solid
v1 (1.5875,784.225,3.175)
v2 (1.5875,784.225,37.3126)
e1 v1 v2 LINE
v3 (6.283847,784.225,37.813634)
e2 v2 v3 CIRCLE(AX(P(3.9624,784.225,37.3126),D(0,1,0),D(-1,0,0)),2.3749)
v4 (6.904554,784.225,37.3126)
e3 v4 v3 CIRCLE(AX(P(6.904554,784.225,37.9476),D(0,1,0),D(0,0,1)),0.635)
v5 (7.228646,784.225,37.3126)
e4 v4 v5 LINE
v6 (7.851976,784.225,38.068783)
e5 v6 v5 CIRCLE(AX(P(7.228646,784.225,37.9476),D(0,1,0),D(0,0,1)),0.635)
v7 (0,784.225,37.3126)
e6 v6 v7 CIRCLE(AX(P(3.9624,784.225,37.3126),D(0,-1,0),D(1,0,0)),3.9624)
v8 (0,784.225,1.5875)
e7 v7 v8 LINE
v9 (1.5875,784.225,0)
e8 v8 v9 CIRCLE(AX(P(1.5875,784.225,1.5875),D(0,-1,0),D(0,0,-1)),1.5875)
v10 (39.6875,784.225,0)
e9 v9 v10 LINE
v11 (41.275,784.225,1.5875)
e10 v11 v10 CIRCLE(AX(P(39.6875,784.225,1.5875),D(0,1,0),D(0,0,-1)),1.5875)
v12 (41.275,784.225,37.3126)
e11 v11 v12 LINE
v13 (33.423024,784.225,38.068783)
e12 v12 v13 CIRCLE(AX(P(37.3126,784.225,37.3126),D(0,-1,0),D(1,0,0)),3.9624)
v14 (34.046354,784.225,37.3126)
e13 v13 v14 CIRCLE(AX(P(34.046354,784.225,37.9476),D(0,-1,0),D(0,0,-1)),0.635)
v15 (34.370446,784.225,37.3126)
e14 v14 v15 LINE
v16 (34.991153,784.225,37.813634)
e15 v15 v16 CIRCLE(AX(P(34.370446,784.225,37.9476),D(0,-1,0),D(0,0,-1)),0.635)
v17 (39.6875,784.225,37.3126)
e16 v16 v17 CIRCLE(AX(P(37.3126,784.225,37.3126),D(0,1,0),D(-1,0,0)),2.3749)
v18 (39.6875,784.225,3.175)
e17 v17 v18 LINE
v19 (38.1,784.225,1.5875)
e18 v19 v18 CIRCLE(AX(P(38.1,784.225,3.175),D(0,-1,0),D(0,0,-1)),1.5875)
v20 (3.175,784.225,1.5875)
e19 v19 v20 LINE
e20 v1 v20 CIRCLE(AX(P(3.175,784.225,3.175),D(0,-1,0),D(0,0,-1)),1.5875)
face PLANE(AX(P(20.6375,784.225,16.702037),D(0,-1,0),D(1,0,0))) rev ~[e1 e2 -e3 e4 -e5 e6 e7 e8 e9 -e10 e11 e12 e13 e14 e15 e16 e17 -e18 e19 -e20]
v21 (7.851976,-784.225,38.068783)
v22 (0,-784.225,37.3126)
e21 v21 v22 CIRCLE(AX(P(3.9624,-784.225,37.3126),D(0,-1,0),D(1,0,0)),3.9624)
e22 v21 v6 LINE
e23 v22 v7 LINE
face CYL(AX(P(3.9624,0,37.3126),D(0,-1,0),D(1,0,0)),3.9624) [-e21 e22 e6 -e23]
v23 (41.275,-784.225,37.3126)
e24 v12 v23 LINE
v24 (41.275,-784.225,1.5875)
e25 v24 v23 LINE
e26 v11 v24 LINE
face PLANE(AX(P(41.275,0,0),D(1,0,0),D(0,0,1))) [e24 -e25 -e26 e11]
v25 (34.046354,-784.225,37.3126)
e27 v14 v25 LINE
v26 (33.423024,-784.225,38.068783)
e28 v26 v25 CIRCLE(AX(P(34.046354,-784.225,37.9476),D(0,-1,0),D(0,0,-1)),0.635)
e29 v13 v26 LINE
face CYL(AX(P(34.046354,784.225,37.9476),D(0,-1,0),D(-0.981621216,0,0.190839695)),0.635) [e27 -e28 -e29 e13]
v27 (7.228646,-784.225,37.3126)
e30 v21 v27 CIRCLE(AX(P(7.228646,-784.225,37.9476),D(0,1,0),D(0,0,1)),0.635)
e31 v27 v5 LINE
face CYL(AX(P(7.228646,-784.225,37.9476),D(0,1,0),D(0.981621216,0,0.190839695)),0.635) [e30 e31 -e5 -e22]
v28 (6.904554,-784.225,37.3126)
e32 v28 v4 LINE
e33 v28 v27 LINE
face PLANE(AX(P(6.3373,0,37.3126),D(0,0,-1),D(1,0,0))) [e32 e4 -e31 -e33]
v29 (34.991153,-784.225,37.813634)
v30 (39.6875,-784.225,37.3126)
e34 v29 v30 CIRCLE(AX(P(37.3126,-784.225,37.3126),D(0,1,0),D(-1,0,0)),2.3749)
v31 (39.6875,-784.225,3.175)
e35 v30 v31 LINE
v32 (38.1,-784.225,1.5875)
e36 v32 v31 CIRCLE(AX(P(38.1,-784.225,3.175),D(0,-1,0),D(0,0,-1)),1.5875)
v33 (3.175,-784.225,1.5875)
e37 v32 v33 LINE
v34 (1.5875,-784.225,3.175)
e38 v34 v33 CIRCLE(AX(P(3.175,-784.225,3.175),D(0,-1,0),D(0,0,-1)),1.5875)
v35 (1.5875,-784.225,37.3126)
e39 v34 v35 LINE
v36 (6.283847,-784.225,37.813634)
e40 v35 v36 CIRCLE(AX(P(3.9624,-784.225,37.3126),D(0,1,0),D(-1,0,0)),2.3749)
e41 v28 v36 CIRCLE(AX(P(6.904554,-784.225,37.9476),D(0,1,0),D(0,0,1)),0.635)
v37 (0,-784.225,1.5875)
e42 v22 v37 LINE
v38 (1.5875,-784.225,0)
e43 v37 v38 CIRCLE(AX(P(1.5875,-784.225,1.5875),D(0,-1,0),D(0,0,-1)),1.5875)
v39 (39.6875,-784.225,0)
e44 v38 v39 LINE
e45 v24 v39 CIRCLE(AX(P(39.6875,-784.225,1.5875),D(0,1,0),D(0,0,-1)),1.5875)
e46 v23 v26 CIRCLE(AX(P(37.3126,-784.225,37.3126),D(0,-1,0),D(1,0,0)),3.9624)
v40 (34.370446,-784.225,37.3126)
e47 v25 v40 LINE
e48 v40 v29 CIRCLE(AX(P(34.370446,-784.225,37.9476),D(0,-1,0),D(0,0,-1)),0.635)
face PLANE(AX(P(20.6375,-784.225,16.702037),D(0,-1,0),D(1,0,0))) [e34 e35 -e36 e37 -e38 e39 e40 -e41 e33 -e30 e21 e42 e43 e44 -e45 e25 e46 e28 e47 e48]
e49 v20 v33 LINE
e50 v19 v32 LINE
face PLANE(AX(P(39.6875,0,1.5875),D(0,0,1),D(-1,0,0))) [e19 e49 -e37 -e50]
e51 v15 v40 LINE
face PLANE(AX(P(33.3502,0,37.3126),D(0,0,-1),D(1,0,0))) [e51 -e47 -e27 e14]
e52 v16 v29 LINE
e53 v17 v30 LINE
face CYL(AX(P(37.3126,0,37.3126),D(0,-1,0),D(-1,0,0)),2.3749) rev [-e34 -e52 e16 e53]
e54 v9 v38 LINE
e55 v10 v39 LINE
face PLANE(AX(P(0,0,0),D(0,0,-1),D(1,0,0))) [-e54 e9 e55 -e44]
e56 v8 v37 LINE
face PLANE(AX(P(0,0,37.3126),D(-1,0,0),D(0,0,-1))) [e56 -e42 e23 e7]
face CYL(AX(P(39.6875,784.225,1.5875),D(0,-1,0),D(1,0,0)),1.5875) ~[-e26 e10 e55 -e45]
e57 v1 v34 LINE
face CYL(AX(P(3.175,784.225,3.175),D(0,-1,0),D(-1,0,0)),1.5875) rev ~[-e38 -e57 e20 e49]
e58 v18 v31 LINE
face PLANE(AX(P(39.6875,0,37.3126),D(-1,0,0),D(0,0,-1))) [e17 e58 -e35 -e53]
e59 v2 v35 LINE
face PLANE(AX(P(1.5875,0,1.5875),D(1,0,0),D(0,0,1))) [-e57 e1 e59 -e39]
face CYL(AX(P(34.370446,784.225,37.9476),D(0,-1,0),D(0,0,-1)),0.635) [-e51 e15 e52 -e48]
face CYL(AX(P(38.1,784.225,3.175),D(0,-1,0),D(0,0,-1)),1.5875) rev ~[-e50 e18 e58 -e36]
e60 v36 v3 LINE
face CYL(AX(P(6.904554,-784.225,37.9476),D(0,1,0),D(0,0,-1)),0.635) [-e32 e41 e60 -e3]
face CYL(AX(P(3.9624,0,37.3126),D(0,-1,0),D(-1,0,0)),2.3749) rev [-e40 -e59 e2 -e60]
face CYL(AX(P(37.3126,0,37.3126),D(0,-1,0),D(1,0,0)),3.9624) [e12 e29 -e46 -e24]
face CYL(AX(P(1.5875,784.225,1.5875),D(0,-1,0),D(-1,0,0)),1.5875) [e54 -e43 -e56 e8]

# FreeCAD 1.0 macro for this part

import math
import FreeCAD as App
import Part
import Sketcher

V = App.Vector
Q = App.Units.Quantity


def edges_at(feature, points):
    """Names of the edges that pass closest to the given points."""
    edges = feature.Shape.Edges
    near = lambda p: min(range(len(edges)), key=lambda i: edges[i].distToShape(Part.Vertex(*p))[0])
    return sorted({f"Edge{near(p) + 1}" for p in points})

doc = App.newDocument("Part")
body = doc.addObject("PartDesign::Body", "Body")

# Sketch on XZ plane
sketch1 = body.newObject("Sketcher::SketchObject", "Sketch")
sketch1.AttachmentSupport = (doc.getObject("XZ_Plane"), [""])
sketch1.MapMode = "FlatFace"
sketch1.addGeometry([
    Part.LineSegment(V(0, 37.3, 0), V(0, 0, 0)),  # 0
    Part.LineSegment(V(0, 0, 0), V(41.3, 0, 0)),  # 1
    Part.LineSegment(V(41.3, 0, 0), V(41.3, 37.3, 0)),  # 2
    Part.ArcOfCircle(Part.Circle(V(37.3, 37.3, 0), V(0, 0, 1), 4), math.radians(0), math.radians(180)),  # 3
    Part.LineSegment(V(33.4, 37.3, 0), V(34.9, 37.3, 0)),  # 4
    Part.ArcOfCircle(Part.Circle(V(37.3, 37.3, 0), V(0, 0, 1), 2.4), math.radians(0), math.radians(180)),  # 5
    Part.LineSegment(V(39.7, 37.3, 0), V(39.7, 1.6, 0)),  # 6
    Part.LineSegment(V(39.7, 1.6, 0), V(1.6, 1.6, 0)),  # 7
    Part.LineSegment(V(1.6, 1.6, 0), V(1.6, 37.3, 0)),  # 8
    Part.ArcOfCircle(Part.Circle(V(4, 37.3, 0), V(0, 0, 1), 2.4), math.radians(0), math.radians(180)),  # 9
    Part.LineSegment(V(6.3, 37.3, 0), V(7.9, 37.3, 0)),  # 10
    Part.ArcOfCircle(Part.Circle(V(4, 37.3, 0), V(0, 0, 1), 4), math.radians(0), math.radians(180)),  # 11
], False)
sketch1.addConstraint([
    Sketcher.Constraint("Coincident", 0, 2, 1, 1),
    Sketcher.Constraint("Coincident", 1, 2, 2, 1),
    Sketcher.Constraint("Tangent", 2, 2, 3, 1),
    Sketcher.Constraint("Coincident", 3, 2, 4, 1),
    Sketcher.Constraint("Coincident", 4, 2, 5, 2),
    Sketcher.Constraint("Tangent", 5, 1, 6, 1),
    Sketcher.Constraint("Coincident", 6, 2, 7, 1),
    Sketcher.Constraint("Coincident", 7, 2, 8, 1),
    Sketcher.Constraint("Tangent", 8, 2, 9, 2),
    Sketcher.Constraint("Coincident", 9, 1, 10, 1),
    Sketcher.Constraint("Coincident", 10, 2, 11, 1),
    Sketcher.Constraint("Tangent", 11, 2, 0, 1),
    Sketcher.Constraint("Vertical", 0),
    Sketcher.Constraint("Horizontal", 1),
    Sketcher.Constraint("Vertical", 2),
    Sketcher.Constraint("Horizontal", 4),
    Sketcher.Constraint("Vertical", 6),
    Sketcher.Constraint("Horizontal", 7),
    Sketcher.Constraint("Vertical", 8),
    Sketcher.Constraint("Horizontal", 10),
    Sketcher.Constraint("Coincident", 0, 2, -1, 1),
    Sketcher.Constraint("Coincident", 5, 3, 3, 3),
    Sketcher.Constraint("Coincident", 11, 3, 9, 3),
    Sketcher.Constraint("Equal", 5, 9),
    Sketcher.Constraint("Equal", 3, 11),
    Sketcher.Constraint("Horizontal", 5, 3, 9, 3),
    Sketcher.Constraint("Horizontal", 2, 2, 3, 2),
    Sketcher.Constraint("Horizontal", 8, 2, 9, 1),
    Sketcher.Constraint("DistanceX", 7, 2, 7, 1, Q("1.5 in")),
    Sketcher.Constraint("Radius", 3, Q("0.156 in")),
    Sketcher.Constraint("Radius", 5, Q("0.0935 in")),
    Sketcher.Constraint("DistanceY", 0, 2, 0, 1, Q("1.469 in")),
    Sketcher.Constraint("DistanceY", 6, 2, 6, 1, Q("1.4065 in")),
])
pad1 = body.newObject("PartDesign::Pad", "Pad")
pad1.Profile = sketch1
pad1.Length = Q("61.75 in")
pad1.Midplane = True
doc.recompute()

fillet = body.newObject("PartDesign::Fillet", "Fillet")
fillet.Base = (pad1, edges_at(pad1, [
    (0, 0, 0),
    (41.275, 0, 0),
    (1.587, 0, 1.587),
    (39.688, 0, 1.587),
]))
fillet.Radius = Q("0.0625 in")
doc.recompute()

fillet2 = body.newObject("PartDesign::Fillet", "Fillet001")
fillet2.Base = (fillet, edges_at(fillet, [
    (6.337, 0, 37.313),
    (7.925, 0, 37.313),
    (33.35, 0, 37.313),
    (34.938, 0, 37.313),
]))
fillet2.Radius = Q("0.025 in")

doc.recompute()
